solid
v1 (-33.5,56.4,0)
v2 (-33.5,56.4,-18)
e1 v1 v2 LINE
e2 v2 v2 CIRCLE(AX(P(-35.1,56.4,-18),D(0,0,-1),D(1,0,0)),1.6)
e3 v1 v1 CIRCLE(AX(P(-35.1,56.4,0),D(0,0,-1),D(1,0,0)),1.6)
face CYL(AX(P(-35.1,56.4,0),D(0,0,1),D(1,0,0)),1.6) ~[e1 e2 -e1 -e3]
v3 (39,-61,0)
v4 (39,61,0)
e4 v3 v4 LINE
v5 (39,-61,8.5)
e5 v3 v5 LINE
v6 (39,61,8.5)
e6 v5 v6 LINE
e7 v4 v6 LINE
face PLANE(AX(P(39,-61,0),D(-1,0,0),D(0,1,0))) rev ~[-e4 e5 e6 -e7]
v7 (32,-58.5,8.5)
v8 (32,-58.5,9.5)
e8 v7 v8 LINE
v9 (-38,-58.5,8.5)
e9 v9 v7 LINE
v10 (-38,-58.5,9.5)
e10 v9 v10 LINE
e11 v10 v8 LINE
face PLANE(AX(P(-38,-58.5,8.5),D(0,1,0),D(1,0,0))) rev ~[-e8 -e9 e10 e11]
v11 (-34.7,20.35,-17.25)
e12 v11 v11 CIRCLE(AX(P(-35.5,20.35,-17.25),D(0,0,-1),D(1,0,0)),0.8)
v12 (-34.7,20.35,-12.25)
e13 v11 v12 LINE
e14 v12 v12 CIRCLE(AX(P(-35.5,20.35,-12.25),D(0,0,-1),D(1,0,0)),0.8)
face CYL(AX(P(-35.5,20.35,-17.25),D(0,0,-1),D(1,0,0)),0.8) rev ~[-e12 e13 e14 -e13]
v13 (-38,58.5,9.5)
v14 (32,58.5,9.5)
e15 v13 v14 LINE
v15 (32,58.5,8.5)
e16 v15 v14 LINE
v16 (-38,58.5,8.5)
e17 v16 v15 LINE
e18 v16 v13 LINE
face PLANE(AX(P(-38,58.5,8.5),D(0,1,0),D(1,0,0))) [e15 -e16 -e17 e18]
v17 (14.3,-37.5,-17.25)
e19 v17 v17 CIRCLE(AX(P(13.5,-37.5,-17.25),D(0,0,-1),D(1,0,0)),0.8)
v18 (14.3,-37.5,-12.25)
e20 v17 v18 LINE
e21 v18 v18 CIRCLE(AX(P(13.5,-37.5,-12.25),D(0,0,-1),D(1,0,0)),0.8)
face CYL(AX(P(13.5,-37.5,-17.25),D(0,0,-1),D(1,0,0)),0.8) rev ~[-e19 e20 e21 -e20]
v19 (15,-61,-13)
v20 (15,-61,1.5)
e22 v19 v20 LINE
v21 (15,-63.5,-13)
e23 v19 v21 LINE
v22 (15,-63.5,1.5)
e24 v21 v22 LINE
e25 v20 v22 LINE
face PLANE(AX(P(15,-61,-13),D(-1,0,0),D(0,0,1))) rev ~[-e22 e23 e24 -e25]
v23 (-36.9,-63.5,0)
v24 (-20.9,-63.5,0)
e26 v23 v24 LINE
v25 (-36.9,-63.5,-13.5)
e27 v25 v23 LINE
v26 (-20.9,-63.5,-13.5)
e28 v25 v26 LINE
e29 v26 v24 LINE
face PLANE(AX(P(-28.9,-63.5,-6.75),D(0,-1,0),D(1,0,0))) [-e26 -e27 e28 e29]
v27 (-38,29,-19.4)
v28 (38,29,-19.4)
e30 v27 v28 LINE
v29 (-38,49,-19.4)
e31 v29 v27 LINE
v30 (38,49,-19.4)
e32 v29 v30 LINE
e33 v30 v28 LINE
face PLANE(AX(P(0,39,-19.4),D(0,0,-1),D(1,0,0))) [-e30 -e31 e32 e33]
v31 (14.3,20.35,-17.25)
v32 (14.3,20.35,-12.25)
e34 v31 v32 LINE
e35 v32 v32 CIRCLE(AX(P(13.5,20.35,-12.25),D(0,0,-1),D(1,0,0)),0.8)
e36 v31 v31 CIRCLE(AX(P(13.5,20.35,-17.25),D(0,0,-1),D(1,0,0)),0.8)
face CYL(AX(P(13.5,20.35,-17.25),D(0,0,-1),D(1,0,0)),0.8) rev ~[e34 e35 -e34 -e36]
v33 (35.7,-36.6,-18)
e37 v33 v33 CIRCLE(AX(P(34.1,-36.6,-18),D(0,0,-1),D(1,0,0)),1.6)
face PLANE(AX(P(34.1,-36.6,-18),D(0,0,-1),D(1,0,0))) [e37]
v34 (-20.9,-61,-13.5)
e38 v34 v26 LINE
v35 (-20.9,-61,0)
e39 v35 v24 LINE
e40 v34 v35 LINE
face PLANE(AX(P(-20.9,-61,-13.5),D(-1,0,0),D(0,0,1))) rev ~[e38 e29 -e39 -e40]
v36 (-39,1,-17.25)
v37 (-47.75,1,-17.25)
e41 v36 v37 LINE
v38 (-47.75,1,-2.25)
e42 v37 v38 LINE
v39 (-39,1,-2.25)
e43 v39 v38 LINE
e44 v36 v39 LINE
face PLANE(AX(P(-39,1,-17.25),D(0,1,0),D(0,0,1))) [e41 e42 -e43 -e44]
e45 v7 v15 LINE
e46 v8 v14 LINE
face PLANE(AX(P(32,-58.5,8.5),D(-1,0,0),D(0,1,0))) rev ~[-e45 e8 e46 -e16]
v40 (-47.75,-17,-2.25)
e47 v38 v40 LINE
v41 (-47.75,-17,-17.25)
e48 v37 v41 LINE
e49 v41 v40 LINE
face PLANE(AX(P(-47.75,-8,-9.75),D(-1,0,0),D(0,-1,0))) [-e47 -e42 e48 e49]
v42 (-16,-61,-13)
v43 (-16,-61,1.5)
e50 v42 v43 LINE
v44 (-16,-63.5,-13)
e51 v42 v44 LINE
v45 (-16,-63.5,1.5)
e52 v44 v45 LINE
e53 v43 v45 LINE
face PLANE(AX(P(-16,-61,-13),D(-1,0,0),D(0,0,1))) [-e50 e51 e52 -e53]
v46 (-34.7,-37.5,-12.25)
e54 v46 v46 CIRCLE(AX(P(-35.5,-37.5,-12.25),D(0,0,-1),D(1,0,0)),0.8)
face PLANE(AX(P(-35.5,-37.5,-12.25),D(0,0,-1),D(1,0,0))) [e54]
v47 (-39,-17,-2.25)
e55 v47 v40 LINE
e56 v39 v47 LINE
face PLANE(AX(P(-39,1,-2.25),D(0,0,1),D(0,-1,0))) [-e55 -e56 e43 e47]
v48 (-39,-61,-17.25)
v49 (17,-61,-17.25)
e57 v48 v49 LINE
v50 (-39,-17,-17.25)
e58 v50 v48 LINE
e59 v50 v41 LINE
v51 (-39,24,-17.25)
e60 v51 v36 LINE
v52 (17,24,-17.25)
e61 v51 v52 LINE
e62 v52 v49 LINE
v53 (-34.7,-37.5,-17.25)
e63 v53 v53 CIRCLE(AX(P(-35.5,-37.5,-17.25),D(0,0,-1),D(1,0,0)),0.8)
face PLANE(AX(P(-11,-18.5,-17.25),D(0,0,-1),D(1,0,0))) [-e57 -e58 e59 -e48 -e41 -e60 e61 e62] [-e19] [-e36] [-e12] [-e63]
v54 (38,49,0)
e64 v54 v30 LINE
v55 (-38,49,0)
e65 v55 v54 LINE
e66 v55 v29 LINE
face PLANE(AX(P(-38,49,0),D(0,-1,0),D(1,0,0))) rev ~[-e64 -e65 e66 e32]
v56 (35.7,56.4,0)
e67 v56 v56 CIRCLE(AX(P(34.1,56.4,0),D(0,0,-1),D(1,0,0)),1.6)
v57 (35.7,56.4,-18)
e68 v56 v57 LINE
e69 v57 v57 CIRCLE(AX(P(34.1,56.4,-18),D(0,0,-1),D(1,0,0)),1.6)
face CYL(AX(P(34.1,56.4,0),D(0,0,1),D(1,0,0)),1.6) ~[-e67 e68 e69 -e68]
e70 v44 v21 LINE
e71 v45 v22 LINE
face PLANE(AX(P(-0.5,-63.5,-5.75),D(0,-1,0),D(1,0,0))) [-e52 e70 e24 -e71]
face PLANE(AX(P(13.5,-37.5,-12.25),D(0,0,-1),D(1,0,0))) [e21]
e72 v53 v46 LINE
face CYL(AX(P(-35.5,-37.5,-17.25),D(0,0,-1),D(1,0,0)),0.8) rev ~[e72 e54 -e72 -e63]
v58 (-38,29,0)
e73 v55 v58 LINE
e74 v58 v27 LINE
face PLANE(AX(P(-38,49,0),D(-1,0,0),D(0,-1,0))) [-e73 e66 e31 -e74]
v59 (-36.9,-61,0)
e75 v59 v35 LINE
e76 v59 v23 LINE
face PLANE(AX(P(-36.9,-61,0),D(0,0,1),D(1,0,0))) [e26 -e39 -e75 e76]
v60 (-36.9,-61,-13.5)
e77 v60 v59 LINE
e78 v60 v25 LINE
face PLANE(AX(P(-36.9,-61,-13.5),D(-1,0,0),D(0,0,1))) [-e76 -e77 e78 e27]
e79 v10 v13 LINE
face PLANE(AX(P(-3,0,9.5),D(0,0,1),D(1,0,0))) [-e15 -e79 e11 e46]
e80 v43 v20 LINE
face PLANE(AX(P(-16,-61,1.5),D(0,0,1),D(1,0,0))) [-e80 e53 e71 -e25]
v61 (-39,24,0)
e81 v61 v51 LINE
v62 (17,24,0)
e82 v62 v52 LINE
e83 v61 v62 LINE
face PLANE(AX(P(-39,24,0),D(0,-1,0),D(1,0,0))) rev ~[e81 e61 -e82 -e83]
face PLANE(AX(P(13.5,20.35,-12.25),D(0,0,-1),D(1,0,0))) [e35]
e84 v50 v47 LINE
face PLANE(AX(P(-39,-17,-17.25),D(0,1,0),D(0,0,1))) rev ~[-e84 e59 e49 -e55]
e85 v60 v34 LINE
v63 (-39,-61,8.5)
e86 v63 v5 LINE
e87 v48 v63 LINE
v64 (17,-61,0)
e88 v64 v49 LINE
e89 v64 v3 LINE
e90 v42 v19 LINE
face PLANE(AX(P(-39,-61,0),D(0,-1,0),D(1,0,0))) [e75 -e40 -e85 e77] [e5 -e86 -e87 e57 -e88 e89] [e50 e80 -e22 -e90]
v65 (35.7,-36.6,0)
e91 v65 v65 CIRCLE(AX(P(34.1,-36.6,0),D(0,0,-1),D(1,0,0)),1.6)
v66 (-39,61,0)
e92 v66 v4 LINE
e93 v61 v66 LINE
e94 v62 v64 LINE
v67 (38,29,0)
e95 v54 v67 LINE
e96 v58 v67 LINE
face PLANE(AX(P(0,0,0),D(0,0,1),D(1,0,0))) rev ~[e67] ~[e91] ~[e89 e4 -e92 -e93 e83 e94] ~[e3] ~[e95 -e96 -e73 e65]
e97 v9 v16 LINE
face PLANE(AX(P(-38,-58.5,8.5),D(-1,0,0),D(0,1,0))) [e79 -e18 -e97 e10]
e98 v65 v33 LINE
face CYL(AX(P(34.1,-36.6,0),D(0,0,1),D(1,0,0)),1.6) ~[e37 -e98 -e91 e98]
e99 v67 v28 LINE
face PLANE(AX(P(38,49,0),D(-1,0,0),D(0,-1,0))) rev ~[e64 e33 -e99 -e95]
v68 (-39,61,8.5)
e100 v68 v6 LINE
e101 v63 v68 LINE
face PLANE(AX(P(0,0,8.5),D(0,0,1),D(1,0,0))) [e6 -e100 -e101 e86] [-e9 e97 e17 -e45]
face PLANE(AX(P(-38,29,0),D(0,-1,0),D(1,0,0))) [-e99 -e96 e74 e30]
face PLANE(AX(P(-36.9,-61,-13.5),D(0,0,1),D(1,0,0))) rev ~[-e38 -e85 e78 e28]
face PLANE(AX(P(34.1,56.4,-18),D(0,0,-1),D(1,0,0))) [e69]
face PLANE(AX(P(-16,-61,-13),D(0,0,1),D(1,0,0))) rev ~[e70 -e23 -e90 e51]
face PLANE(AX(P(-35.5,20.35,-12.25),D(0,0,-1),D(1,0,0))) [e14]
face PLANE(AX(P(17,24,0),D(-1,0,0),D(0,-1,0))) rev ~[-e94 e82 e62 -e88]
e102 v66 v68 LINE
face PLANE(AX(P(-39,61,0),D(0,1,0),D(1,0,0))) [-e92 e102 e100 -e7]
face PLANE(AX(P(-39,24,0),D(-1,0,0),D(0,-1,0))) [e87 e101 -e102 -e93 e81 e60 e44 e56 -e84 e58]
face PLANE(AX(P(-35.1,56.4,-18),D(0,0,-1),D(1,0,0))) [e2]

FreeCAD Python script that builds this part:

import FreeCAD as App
import Part
import Sketcher
from FreeCAD import Vector


def add_polygon(sketch, points):
    """Adds a closed chain of lines whose ends are joined by coincident constraints."""
    first, n = sketch.GeometryCount, len(points)
    for a, b in zip(points, points[1:] + points[:1]):
        sketch.addGeometry(Part.LineSegment(App.Vector(*a, 0), App.Vector(*b, 0)), False)
    for i in range(n):
        sketch.addConstraint(Sketcher.Constraint("Coincident", first + i, 2, first + (i + 1) % n, 1))

doc = App.newDocument("Part")
body = doc.addObject("PartDesign::Body", "Body")

# Sketch on XY plane
sketch1 = doc.addObject("Sketcher::SketchObject", "Sketch")
body.addObject(sketch1)
sketch1.AttachmentSupport = (doc.XY_Plane, [""])
sketch1.MapMode = "FlatFace"
add_polygon(sketch1, [(-39, 61), (-39, -61), (39, -61), (39, 61)])  # lines 0-3
sketch1.addConstraint([
    Sketcher.Constraint("Vertical", 0),
    Sketcher.Constraint("Horizontal", 1),
    Sketcher.Constraint("Vertical", 2),
    Sketcher.Constraint("Horizontal", 3),
    Sketcher.Constraint("Symmetric", 0, 2, 2, 2, -1, 1),
    Sketcher.Constraint("DistanceX", 1, 1, 1, 2, 78.0),
    Sketcher.Constraint("DistanceY", 0, 2, 0, 1, 122.0),
])
pad1 = doc.addObject("PartDesign::Pad", "Pad")
body.addObject(pad1)
pad1.Profile = sketch1
pad1.Length = 8.5

# Sketch on XY plane
sketch2 = doc.addObject("Sketcher::SketchObject", "Sketch001")
body.addObject(sketch2)
sketch2.AttachmentSupport = (doc.XY_Plane, [""])
sketch2.MapMode = "FlatFace"
sketch2.AttachmentOffset = App.Placement(Vector(0, 0, 8.5), App.Rotation())
add_polygon(sketch2, [(-38, 58.5), (-38, -58.5), (32, -58.5), (32, 58.5)])  # lines 0-3
sketch2.addConstraint([
    Sketcher.Constraint("Vertical", 0),
    Sketcher.Constraint("Horizontal", 1),
    Sketcher.Constraint("Vertical", 2),
    Sketcher.Constraint("Horizontal", 3),
    Sketcher.Constraint("DistanceX", 1, 1, 1, 2, 70.0),
    Sketcher.Constraint("DistanceY", 0, 2, 0, 1, 117.0),
    Sketcher.Constraint("DistanceX", 0, 2, -1, 1, 38.0),
    Sketcher.Constraint("DistanceY", 0, 2, -1, 1, 58.5),
])
pad2 = doc.addObject("PartDesign::Pad", "Pad001")
body.addObject(pad2)
pad2.Profile = sketch2
pad2.Length = 1

# Sketch on XY plane
sketch3 = doc.addObject("Sketcher::SketchObject", "Sketch002")
body.addObject(sketch3)
sketch3.AttachmentSupport = (doc.XY_Plane, [""])
sketch3.MapMode = "FlatFace"
add_polygon(sketch3, [(-39, -61), (-39, 24), (17, 24), (17, -61)])  # lines 0-3
sketch3.addConstraint([
    Sketcher.Constraint("Vertical", 0),
    Sketcher.Constraint("Horizontal", 1),
    Sketcher.Constraint("Vertical", 2),
    Sketcher.Constraint("Horizontal", 3),
    Sketcher.Constraint("DistanceX", 1, 1, 1, 2, 56.0),
    Sketcher.Constraint("DistanceY", 0, 1, 0, 2, 85.0),
    Sketcher.Constraint("DistanceX", 0, 2, -1, 1, 39.0),
    Sketcher.Constraint("DistanceY", -1, 1, 0, 2, 24.0),
])
pad3 = doc.addObject("PartDesign::Pad", "Pad002")
body.addObject(pad3)
pad3.Profile = sketch3
pad3.Length = 17.25
pad3.Reversed = True

# Sketch on YZ plane
sketch4 = doc.addObject("Sketcher::SketchObject", "Sketch003")
body.addObject(sketch4)
sketch4.AttachmentSupport = (doc.YZ_Plane, [""])
sketch4.MapMode = "FlatFace"
sketch4.AttachmentOffset = App.Placement(Vector(0, 0, -39), App.Rotation())
add_polygon(sketch4, [(1, -2.25), (1, -17.25), (-17, -17.25), (-17, -2.25)])  # lines 0-3
sketch4.addConstraint([
    Sketcher.Constraint("Vertical", 0),
    Sketcher.Constraint("Horizontal", 1),
    Sketcher.Constraint("Vertical", 2),
    Sketcher.Constraint("Horizontal", 3),
    Sketcher.Constraint("DistanceX", 1, 2, 1, 1, 18.0),
    Sketcher.Constraint("DistanceY", 0, 2, 0, 1, 15.0),
    Sketcher.Constraint("DistanceX", -1, 1, 0, 2, 1.0),
    Sketcher.Constraint("DistanceY", 0, 2, -1, 1, 17.25),
])
pad4 = doc.addObject("PartDesign::Pad", "Pad003")
body.addObject(pad4)
pad4.Profile = sketch4
pad4.Length = 8.75
pad4.Reversed = True

# Sketch on XZ plane
sketch5 = doc.addObject("Sketcher::SketchObject", "Sketch004")
body.addObject(sketch5)
sketch5.AttachmentSupport = (doc.XZ_Plane, [""])
sketch5.MapMode = "FlatFace"
sketch5.AttachmentOffset = App.Placement(Vector(0, 0, 61), App.Rotation())
add_polygon(sketch5, [(-36.9, 0), (-36.9, -13.5), (-20.9, -13.5), (-20.9, 0)])  # lines 0-3
add_polygon(sketch5, [(-16, 1.5), (-16, -13), (15, -13), (15, 1.5)])  # lines 4-7
sketch5.addConstraint([
    Sketcher.Constraint("Vertical", 0),
    Sketcher.Constraint("Horizontal", 1),
    Sketcher.Constraint("Vertical", 2),
    Sketcher.Constraint("Horizontal", 3),
    Sketcher.Constraint("Vertical", 4),
    Sketcher.Constraint("Horizontal", 5),
    Sketcher.Constraint("Vertical", 6),
    Sketcher.Constraint("Horizontal", 7),
    Sketcher.Constraint("PointOnObject", 2, 2, -1),
    Sketcher.Constraint("DistanceX", 1, 1, 1, 2, 16.0),
    Sketcher.Constraint("DistanceX", 5, 1, 5, 2, 31.0),
    Sketcher.Constraint("DistanceY", 0, 2, 0, 1, 13.5),
    Sketcher.Constraint("DistanceY", 4, 2, 4, 1, 14.5),
    Sketcher.Constraint("DistanceX", 4, 2, -1, 1, 16.0),
    Sketcher.Constraint("DistanceY", 4, 2, -1, 1, 13.0),
    Sketcher.Constraint("DistanceX", 0, 2, -1, 1, 36.9),
])
pad5 = doc.addObject("PartDesign::Pad", "Pad004")
body.addObject(pad5)
pad5.Profile = sketch5
pad5.Length = 2.5

# Sketch on XY plane
sketch6 = doc.addObject("Sketcher::SketchObject", "Sketch005")
body.addObject(sketch6)
sketch6.AttachmentSupport = (doc.XY_Plane, [""])
sketch6.MapMode = "FlatFace"
sketch6.AttachmentOffset = App.Placement(Vector(0, 0, -17.25), App.Rotation())
sketch6.addGeometry([
    Part.Circle(Vector(13.5, -37.5, 0), Vector(0, 0, 1), 0.8),
    Part.Circle(Vector(-35.5, -37.5, 0), Vector(0, 0, 1), 0.8),
    Part.Circle(Vector(-35.5, 20.35, 0), Vector(0, 0, 1), 0.8),
    Part.Circle(Vector(13.5, 20.35, 0), Vector(0, 0, 1), 0.8),
], False)
sketch6.addConstraint([
    Sketcher.Constraint("Equal", 0, 1),
    Sketcher.Constraint("Equal", 1, 2),
    Sketcher.Constraint("Equal", 2, 3),
    Sketcher.Constraint("Horizontal", 0, 3, 1, 3),
    Sketcher.Constraint("Horizontal", 2, 3, 3, 3),
    Sketcher.Constraint("Vertical", 1, 3, 2, 3),
    Sketcher.Constraint("Vertical", 0, 3, 3, 3),
    Sketcher.Constraint("Diameter", 0, 1.6),
    Sketcher.Constraint("DistanceX", 1, 3, 0, 3, 49.0),
    Sketcher.Constraint("DistanceX", -1, 1, 0, 3, 13.5),
    Sketcher.Constraint("DistanceY", 0, 3, -1, 1, 37.5),
    Sketcher.Constraint("DistanceY", -1, 1, 2, 3, 20.35),
])
pocket1 = doc.addObject("PartDesign::Pocket", "Pocket")
body.addObject(pocket1)
pocket1.Profile = sketch6
pocket1.Length = 5
pocket1.Reversed = True

# Sketch on XY plane
sketch7 = doc.addObject("Sketcher::SketchObject", "Sketch006")
body.addObject(sketch7)
sketch7.AttachmentSupport = (doc.XY_Plane, [""])
sketch7.MapMode = "FlatFace"
sketch7.addGeometry([
    Part.Circle(Vector(-35.1, 56.4, 0), Vector(0, 0, 1), 1.6),
    Part.Circle(Vector(34.1, 56.4, 0), Vector(0, 0, 1), 1.6),
    Part.Circle(Vector(34.1, -36.6, 0), Vector(0, 0, 1), 1.6),
], False)
sketch7.addConstraint([
    Sketcher.Constraint("Equal", 0, 1),
    Sketcher.Constraint("Equal", 1, 2),
    Sketcher.Constraint("Horizontal", 0, 3, 1, 3),
    Sketcher.Constraint("Vertical", 1, 3, 2, 3),
    Sketcher.Constraint("Diameter", 0, 3.2),
    Sketcher.Constraint("DistanceY", 2, 3, 1, 3, 93.0),
    Sketcher.Constraint("DistanceX", 0, 3, -1, 1, 35.1),
    Sketcher.Constraint("DistanceY", -1, 1, 0, 3, 56.4),
    Sketcher.Constraint("DistanceX", -1, 1, 1, 3, 34.1),
])
pad6 = doc.addObject("PartDesign::Pad", "Pad005")
body.addObject(pad6)
pad6.Profile = sketch7
pad6.Length = 18
pad6.Reversed = True

# Sketch on XY plane
sketch8 = doc.addObject("Sketcher::SketchObject", "Sketch007")
body.addObject(sketch8)
sketch8.AttachmentSupport = (doc.XY_Plane, [""])
sketch8.MapMode = "FlatFace"
add_polygon(sketch8, [(-38, 29), (-38, 49), (38, 49), (38, 29)])  # lines 0-3
sketch8.addConstraint([
    Sketcher.Constraint("Vertical", 0),
    Sketcher.Constraint("Horizontal", 1),
    Sketcher.Constraint("Vertical", 2),
    Sketcher.Constraint("Horizontal", 3),
    Sketcher.Constraint("DistanceX", 1, 1, 1, 2, 76.0),
    Sketcher.Constraint("DistanceY", 0, 1, 0, 2, 20.0),
    Sketcher.Constraint("DistanceX", 0, 2, -1, 1, 38.0),
    Sketcher.Constraint("DistanceY", -1, 1, 0, 2, 49.0),
])
pad7 = doc.addObject("PartDesign::Pad", "Pad006")
body.addObject(pad7)
pad7.Profile = sketch8
pad7.Length = 19.4
pad7.Reversed = True

doc.recompute()
